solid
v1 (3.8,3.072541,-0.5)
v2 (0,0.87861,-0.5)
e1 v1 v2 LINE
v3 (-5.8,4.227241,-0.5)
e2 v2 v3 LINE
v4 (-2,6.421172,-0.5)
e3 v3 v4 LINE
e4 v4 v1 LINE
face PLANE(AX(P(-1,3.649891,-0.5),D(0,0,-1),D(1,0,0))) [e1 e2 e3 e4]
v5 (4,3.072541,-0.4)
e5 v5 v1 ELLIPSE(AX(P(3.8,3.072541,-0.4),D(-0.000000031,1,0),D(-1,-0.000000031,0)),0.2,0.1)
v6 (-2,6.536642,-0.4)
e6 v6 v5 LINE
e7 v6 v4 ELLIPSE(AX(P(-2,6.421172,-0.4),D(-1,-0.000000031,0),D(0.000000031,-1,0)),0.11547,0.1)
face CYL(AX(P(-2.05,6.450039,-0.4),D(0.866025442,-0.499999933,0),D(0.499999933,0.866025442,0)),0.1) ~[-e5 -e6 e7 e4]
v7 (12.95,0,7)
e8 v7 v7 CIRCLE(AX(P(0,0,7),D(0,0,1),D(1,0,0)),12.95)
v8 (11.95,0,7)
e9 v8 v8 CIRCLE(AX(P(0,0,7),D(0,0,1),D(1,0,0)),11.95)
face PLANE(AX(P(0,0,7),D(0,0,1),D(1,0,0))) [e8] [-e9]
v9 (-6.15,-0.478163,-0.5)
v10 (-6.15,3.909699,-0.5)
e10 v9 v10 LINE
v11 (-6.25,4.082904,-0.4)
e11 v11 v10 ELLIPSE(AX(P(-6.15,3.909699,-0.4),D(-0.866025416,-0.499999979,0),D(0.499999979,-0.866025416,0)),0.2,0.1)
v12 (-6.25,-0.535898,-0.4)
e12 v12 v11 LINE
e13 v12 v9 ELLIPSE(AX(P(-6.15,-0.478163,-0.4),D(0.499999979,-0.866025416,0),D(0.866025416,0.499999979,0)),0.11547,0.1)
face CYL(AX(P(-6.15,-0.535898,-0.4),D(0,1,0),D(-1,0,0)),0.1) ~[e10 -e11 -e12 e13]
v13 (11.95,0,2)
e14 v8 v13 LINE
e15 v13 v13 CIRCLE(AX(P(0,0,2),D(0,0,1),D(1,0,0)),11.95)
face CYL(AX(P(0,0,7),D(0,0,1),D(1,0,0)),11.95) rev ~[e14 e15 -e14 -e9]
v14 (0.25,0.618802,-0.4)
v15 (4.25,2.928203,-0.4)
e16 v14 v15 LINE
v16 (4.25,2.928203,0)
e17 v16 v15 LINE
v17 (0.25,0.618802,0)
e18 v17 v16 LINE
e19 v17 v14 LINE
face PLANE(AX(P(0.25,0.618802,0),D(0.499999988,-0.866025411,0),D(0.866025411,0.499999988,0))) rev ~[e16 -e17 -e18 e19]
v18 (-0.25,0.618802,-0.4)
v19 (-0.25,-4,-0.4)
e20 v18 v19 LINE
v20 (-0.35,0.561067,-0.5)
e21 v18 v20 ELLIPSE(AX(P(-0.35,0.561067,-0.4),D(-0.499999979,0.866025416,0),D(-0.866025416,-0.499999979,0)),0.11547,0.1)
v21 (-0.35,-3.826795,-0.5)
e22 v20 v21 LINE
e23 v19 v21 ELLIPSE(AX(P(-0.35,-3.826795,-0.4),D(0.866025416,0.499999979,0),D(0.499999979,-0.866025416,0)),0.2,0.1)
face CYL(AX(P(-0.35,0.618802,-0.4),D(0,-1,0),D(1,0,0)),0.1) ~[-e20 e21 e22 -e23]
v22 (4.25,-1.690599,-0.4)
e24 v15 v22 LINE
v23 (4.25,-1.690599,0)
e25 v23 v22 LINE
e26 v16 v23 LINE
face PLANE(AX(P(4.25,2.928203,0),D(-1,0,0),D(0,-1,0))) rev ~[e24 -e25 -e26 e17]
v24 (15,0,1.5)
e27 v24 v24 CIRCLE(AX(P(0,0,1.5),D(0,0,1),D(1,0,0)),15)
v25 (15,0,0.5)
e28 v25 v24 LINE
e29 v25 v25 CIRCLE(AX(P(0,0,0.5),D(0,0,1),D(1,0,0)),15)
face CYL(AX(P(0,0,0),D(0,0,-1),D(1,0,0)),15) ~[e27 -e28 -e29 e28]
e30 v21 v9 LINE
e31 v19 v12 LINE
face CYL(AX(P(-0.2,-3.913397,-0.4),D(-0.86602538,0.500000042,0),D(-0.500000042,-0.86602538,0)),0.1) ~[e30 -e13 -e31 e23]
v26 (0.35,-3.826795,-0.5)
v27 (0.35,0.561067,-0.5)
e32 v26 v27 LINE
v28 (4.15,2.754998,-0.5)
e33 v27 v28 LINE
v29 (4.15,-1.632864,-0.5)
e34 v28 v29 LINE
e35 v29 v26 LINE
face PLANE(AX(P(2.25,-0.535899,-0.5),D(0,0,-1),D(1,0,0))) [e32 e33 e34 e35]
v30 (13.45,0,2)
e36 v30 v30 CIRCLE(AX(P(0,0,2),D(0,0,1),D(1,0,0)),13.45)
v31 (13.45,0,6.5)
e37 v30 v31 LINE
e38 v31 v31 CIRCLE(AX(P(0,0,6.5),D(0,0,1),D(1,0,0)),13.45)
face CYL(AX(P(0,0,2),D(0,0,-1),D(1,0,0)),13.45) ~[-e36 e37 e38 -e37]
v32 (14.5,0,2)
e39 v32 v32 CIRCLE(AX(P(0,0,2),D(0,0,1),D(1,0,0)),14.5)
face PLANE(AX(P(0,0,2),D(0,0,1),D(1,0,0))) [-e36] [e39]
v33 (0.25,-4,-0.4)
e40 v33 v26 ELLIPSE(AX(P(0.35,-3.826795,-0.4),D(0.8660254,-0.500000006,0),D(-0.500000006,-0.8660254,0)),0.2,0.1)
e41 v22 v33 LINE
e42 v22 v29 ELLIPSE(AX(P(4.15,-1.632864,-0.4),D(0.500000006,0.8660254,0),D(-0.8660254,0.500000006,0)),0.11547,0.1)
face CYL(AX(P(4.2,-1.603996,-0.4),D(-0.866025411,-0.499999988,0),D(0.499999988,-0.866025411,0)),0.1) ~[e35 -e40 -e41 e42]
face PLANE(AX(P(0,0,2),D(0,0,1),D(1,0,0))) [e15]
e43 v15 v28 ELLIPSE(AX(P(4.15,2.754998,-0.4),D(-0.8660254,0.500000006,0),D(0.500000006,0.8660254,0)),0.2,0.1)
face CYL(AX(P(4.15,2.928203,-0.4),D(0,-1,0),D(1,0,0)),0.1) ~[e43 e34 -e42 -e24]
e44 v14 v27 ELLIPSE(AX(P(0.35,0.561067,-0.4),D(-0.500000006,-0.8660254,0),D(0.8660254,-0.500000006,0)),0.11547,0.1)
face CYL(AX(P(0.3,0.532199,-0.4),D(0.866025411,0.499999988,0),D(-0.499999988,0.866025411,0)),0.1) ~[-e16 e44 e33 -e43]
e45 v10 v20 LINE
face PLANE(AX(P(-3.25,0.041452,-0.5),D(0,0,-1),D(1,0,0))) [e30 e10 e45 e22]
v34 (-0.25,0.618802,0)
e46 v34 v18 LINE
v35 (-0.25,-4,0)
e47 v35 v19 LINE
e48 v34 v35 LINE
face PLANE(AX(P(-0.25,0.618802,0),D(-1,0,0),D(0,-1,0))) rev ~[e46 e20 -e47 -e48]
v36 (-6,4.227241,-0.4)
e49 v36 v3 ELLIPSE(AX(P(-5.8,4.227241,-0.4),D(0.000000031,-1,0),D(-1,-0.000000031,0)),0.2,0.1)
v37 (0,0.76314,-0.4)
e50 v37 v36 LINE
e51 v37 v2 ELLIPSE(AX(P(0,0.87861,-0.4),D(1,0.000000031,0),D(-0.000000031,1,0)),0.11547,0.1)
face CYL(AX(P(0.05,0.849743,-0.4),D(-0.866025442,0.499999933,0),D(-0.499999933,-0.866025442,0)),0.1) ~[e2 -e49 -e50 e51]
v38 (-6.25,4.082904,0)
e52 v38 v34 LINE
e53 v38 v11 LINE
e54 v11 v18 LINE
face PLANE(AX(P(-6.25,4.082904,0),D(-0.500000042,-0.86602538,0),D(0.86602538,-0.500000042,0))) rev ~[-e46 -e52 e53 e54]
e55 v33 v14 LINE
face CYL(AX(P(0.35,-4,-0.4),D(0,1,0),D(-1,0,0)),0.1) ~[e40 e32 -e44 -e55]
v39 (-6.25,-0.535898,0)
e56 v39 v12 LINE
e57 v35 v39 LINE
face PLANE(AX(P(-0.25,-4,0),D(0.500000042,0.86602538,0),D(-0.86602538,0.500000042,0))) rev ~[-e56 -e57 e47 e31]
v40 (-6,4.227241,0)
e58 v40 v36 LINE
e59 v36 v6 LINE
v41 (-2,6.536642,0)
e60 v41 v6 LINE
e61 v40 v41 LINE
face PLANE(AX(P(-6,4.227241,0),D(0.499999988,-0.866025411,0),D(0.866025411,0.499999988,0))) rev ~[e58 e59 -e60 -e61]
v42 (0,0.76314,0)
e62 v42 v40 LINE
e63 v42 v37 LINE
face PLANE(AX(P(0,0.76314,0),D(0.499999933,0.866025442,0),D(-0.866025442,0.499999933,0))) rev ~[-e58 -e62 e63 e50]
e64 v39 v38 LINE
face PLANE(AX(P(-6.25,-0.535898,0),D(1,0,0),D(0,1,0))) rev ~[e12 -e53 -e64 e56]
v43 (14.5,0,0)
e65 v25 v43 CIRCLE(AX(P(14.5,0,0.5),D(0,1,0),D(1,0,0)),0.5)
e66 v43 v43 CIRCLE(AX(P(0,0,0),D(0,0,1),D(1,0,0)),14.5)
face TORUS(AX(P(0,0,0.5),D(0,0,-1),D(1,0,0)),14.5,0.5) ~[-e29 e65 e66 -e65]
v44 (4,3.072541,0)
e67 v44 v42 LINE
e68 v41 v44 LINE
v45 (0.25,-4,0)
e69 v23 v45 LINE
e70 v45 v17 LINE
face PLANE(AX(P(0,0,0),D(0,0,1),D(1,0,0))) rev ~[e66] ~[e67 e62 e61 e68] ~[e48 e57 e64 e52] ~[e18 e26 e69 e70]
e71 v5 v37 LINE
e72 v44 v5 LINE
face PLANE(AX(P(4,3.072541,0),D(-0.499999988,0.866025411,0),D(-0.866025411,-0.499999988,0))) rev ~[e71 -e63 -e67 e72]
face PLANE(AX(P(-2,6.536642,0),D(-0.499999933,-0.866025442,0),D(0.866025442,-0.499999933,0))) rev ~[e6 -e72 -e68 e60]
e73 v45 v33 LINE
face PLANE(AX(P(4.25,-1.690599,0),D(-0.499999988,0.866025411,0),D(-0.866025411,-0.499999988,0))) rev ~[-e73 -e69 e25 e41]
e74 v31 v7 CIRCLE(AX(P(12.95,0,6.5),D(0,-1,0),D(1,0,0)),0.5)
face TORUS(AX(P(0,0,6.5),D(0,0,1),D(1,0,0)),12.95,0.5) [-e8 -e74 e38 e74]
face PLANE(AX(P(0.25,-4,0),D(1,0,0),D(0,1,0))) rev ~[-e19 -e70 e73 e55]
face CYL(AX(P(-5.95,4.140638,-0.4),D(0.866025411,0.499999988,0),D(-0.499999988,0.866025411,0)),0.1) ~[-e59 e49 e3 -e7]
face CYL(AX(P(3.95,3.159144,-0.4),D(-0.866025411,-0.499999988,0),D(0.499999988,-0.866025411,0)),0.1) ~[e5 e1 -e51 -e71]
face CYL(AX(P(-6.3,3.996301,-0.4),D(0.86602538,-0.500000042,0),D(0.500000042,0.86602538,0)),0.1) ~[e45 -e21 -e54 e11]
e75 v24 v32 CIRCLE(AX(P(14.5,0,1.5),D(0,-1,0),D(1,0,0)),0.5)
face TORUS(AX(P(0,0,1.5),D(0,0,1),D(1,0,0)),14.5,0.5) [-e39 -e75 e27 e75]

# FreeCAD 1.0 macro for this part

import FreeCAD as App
import Part
import Sketcher
from FreeCAD import Vector
Q = App.Units.Quantity


def edges_at(feature, points):
    """Names of the edges that pass closest to the given points."""
    edges = feature.Shape.Edges
    near = lambda p: min(range(len(edges)), key=lambda i: edges[i].distToShape(Part.Vertex(*p))[0])
    return sorted({f"Edge{near(p) + 1}" for p in points})

doc = App.newDocument("Part")
body = doc.addObject("PartDesign::Body", "Body")

# Sketch on XY plane
sketch1 = body.newObject("Sketcher::SketchObject", "Sketch")
sketch1.AttachmentSupport = (doc.getObject("XY_Plane"), [""])
sketch1.MapMode = "FlatFace"
sketch1.addGeometry(Part.Circle(Vector(0, 0, 0), Vector(0, 0, 1), 15), False)
sketch1.addConstraint([
    Sketcher.Constraint("Coincident", 0, 3, -1, 1),
    Sketcher.Constraint("Diameter", 0, 30.0),
])
pad1 = body.newObject("PartDesign::Pad", "Pad")
pad1.Profile = sketch1
pad1.Length = 2

# Sketch on XY plane
sketch2 = body.newObject("Sketcher::SketchObject", "Sketch001")
sketch2.AttachmentSupport = (doc.getObject("XY_Plane"), [""])
sketch2.MapMode = "FlatFace"
sketch2.AttachmentOffset = App.Placement(Vector(0, 0, 2), App.Rotation())
sketch2.addGeometry(Part.Circle(Vector(0, 0, 0), Vector(0, 0, 1), 13), False)
sketch2.addConstraint([
    Sketcher.Constraint("Coincident", 0, 3, -1, 1),
    Sketcher.Constraint("Diameter", 0, 26.9),
])
pad2 = body.newObject("PartDesign::Pad", "Pad001")
pad2.Profile = sketch2
pad2.Length = 5
doc.recompute()

fillet = body.newObject("PartDesign::Fillet", "Fillet")
fillet.Base = (pad2, edges_at(pad2, [(-15, 0, 2), (-13.45, 0, 7), (-15, 0, 0)]))
fillet.Radius = 0.5

# Sketch on XY plane
sketch3 = body.newObject("Sketcher::SketchObject", "Sketch002")
sketch3.AttachmentSupport = (doc.getObject("XY_Plane"), [""])
sketch3.MapMode = "FlatFace"
sketch3.addGeometry([
    Part.LineSegment(Vector(-6.2, 4.1, 0), Vector(-0.2, 0.6, 0)),  # 0
    Part.LineSegment(Vector(-0.2, 0.6, 0), Vector(-0.2, -4, 0)),  # 1
    Part.LineSegment(Vector(-0.2, -4, 0), Vector(-6.2, -0.5, 0)),  # 2
    Part.LineSegment(Vector(-6.2, -0.5, 0), Vector(-6.2, 4.1, 0)),  # 3
    Part.LineSegment(Vector(0.2, -4, 0), Vector(0.2, 0.6, 0)),  # 4
    Part.LineSegment(Vector(0.2, 0.6, 0), Vector(4.2, 2.9, 0)),  # 5
    Part.LineSegment(Vector(4.2, 2.9, 0), Vector(4.2, -1.7, 0)),  # 6
    Part.LineSegment(Vector(4.2, -1.7, 0), Vector(0.2, -4, 0)),  # 7
    Part.LineSegment(Vector(4, 3.1, 0), Vector(0, 0.8, 0)),  # 8
    Part.LineSegment(Vector(0, 0.8, 0), Vector(-6, 4.2, 0)),  # 9
    Part.LineSegment(Vector(-6, 4.2, 0), Vector(-2, 6.5, 0)),  # 10
    Part.LineSegment(Vector(-2, 6.5, 0), Vector(4, 3.1, 0)),  # 11
], False)
sketch3.addConstraint([
    Sketcher.Constraint("Coincident", 0, 2, 1, 1),
    Sketcher.Constraint("Coincident", 1, 2, 2, 1),
    Sketcher.Constraint("Coincident", 2, 2, 3, 1),
    Sketcher.Constraint("Coincident", 3, 2, 0, 1),
    Sketcher.Constraint("Coincident", 4, 2, 5, 1),
    Sketcher.Constraint("Coincident", 5, 2, 6, 1),
    Sketcher.Constraint("Coincident", 6, 2, 7, 1),
    Sketcher.Constraint("Coincident", 7, 2, 4, 1),
    Sketcher.Constraint("Coincident", 8, 2, 9, 1),
    Sketcher.Constraint("Coincident", 9, 2, 10, 1),
    Sketcher.Constraint("Coincident", 10, 2, 11, 1),
    Sketcher.Constraint("Coincident", 11, 2, 8, 1),
    Sketcher.Constraint("Vertical", 1),
    Sketcher.Constraint("Vertical", 3),
    Sketcher.Constraint("Vertical", 4),
    Sketcher.Constraint("Vertical", 6),
    Sketcher.Constraint("Symmetric", 0, 2, 4, 2, -2),
    Sketcher.Constraint("PointOnObject", 8, 2, -2),
    Sketcher.Constraint("Parallel", 0, 2),
    Sketcher.Constraint("Parallel", 5, 7),
    Sketcher.Constraint("Parallel", 7, 8),
    Sketcher.Constraint("Parallel", 2, 9),
    Sketcher.Constraint("Parallel", 8, 10),
    Sketcher.Constraint("Parallel", 9, 11),
    Sketcher.Constraint("Horizontal", 1, 2, 7, 2),
    Sketcher.Constraint("Equal", 7, 8),
    Sketcher.Constraint("Equal", 2, 9),
    Sketcher.Constraint("Angle", 0, Q("-30.000003 deg")),
    Sketcher.Constraint("Angle", 5, Q("29.999999 deg")),
    Sketcher.Constraint("DistanceY", 1, 2, -1, 1, 4.0),
    Sketcher.Constraint("DistanceX", 9, 2, -1, 1, 6.0),
    Sketcher.Constraint("DistanceX", 10, 2, -1, 1, 2.0),
    Sketcher.Constraint("DistanceX", 0, 2, 4, 2, 0.5),
    Sketcher.Constraint("DistanceY", 1, 2, 1, 1, 4.618802),
    Sketcher.Constraint("DistanceY", -1, 1, 8, 2, 0.76314),
])
pad3 = body.newObject("PartDesign::Pad", "Pad002")
pad3.Profile = sketch3
pad3.Length = 0.5
pad3.Reversed = True
doc.recompute()

fillet2 = body.newObject("PartDesign::Fillet", "Fillet001")
fillet2.Base = (pad3, edges_at(pad3, [
    (2.25, 1.774, -0.5),
    (2.25, -2.845, -0.5),
    (4.25, 0.619, -0.5),
    (0.25, -1.691, -0.5),
    (-0.25, -1.691, -0.5),
    (-3, 2.495, -0.5),
    (2, 1.918, -0.5),
    (1, 4.805, -0.5),
    (-4, 5.382, -0.5),
    (-3.25, 2.351, -0.5),
    (-6.25, 1.774, -0.5),
    (-3.25, -2.268, -0.5),
]))
fillet2.Radius = 0.1

# Sketch on XY plane
sketch4 = body.newObject("Sketcher::SketchObject", "Sketch003")
sketch4.AttachmentSupport = (doc.getObject("XY_Plane"), [""])
sketch4.MapMode = "FlatFace"
sketch4.AttachmentOffset = App.Placement(Vector(0, 0, 7), App.Rotation())
sketch4.addGeometry(Part.Circle(Vector(0, 0, 0), Vector(0, 0, 1), 12), False)
sketch4.addConstraint([
    Sketcher.Constraint("Coincident", 0, 3, -1, 1),
    Sketcher.Constraint("Diameter", 0, 23.9),
])
pocket1 = body.newObject("PartDesign::Pocket", "Pocket")
pocket1.Profile = sketch4
pocket1.Length = 5

doc.recompute()
